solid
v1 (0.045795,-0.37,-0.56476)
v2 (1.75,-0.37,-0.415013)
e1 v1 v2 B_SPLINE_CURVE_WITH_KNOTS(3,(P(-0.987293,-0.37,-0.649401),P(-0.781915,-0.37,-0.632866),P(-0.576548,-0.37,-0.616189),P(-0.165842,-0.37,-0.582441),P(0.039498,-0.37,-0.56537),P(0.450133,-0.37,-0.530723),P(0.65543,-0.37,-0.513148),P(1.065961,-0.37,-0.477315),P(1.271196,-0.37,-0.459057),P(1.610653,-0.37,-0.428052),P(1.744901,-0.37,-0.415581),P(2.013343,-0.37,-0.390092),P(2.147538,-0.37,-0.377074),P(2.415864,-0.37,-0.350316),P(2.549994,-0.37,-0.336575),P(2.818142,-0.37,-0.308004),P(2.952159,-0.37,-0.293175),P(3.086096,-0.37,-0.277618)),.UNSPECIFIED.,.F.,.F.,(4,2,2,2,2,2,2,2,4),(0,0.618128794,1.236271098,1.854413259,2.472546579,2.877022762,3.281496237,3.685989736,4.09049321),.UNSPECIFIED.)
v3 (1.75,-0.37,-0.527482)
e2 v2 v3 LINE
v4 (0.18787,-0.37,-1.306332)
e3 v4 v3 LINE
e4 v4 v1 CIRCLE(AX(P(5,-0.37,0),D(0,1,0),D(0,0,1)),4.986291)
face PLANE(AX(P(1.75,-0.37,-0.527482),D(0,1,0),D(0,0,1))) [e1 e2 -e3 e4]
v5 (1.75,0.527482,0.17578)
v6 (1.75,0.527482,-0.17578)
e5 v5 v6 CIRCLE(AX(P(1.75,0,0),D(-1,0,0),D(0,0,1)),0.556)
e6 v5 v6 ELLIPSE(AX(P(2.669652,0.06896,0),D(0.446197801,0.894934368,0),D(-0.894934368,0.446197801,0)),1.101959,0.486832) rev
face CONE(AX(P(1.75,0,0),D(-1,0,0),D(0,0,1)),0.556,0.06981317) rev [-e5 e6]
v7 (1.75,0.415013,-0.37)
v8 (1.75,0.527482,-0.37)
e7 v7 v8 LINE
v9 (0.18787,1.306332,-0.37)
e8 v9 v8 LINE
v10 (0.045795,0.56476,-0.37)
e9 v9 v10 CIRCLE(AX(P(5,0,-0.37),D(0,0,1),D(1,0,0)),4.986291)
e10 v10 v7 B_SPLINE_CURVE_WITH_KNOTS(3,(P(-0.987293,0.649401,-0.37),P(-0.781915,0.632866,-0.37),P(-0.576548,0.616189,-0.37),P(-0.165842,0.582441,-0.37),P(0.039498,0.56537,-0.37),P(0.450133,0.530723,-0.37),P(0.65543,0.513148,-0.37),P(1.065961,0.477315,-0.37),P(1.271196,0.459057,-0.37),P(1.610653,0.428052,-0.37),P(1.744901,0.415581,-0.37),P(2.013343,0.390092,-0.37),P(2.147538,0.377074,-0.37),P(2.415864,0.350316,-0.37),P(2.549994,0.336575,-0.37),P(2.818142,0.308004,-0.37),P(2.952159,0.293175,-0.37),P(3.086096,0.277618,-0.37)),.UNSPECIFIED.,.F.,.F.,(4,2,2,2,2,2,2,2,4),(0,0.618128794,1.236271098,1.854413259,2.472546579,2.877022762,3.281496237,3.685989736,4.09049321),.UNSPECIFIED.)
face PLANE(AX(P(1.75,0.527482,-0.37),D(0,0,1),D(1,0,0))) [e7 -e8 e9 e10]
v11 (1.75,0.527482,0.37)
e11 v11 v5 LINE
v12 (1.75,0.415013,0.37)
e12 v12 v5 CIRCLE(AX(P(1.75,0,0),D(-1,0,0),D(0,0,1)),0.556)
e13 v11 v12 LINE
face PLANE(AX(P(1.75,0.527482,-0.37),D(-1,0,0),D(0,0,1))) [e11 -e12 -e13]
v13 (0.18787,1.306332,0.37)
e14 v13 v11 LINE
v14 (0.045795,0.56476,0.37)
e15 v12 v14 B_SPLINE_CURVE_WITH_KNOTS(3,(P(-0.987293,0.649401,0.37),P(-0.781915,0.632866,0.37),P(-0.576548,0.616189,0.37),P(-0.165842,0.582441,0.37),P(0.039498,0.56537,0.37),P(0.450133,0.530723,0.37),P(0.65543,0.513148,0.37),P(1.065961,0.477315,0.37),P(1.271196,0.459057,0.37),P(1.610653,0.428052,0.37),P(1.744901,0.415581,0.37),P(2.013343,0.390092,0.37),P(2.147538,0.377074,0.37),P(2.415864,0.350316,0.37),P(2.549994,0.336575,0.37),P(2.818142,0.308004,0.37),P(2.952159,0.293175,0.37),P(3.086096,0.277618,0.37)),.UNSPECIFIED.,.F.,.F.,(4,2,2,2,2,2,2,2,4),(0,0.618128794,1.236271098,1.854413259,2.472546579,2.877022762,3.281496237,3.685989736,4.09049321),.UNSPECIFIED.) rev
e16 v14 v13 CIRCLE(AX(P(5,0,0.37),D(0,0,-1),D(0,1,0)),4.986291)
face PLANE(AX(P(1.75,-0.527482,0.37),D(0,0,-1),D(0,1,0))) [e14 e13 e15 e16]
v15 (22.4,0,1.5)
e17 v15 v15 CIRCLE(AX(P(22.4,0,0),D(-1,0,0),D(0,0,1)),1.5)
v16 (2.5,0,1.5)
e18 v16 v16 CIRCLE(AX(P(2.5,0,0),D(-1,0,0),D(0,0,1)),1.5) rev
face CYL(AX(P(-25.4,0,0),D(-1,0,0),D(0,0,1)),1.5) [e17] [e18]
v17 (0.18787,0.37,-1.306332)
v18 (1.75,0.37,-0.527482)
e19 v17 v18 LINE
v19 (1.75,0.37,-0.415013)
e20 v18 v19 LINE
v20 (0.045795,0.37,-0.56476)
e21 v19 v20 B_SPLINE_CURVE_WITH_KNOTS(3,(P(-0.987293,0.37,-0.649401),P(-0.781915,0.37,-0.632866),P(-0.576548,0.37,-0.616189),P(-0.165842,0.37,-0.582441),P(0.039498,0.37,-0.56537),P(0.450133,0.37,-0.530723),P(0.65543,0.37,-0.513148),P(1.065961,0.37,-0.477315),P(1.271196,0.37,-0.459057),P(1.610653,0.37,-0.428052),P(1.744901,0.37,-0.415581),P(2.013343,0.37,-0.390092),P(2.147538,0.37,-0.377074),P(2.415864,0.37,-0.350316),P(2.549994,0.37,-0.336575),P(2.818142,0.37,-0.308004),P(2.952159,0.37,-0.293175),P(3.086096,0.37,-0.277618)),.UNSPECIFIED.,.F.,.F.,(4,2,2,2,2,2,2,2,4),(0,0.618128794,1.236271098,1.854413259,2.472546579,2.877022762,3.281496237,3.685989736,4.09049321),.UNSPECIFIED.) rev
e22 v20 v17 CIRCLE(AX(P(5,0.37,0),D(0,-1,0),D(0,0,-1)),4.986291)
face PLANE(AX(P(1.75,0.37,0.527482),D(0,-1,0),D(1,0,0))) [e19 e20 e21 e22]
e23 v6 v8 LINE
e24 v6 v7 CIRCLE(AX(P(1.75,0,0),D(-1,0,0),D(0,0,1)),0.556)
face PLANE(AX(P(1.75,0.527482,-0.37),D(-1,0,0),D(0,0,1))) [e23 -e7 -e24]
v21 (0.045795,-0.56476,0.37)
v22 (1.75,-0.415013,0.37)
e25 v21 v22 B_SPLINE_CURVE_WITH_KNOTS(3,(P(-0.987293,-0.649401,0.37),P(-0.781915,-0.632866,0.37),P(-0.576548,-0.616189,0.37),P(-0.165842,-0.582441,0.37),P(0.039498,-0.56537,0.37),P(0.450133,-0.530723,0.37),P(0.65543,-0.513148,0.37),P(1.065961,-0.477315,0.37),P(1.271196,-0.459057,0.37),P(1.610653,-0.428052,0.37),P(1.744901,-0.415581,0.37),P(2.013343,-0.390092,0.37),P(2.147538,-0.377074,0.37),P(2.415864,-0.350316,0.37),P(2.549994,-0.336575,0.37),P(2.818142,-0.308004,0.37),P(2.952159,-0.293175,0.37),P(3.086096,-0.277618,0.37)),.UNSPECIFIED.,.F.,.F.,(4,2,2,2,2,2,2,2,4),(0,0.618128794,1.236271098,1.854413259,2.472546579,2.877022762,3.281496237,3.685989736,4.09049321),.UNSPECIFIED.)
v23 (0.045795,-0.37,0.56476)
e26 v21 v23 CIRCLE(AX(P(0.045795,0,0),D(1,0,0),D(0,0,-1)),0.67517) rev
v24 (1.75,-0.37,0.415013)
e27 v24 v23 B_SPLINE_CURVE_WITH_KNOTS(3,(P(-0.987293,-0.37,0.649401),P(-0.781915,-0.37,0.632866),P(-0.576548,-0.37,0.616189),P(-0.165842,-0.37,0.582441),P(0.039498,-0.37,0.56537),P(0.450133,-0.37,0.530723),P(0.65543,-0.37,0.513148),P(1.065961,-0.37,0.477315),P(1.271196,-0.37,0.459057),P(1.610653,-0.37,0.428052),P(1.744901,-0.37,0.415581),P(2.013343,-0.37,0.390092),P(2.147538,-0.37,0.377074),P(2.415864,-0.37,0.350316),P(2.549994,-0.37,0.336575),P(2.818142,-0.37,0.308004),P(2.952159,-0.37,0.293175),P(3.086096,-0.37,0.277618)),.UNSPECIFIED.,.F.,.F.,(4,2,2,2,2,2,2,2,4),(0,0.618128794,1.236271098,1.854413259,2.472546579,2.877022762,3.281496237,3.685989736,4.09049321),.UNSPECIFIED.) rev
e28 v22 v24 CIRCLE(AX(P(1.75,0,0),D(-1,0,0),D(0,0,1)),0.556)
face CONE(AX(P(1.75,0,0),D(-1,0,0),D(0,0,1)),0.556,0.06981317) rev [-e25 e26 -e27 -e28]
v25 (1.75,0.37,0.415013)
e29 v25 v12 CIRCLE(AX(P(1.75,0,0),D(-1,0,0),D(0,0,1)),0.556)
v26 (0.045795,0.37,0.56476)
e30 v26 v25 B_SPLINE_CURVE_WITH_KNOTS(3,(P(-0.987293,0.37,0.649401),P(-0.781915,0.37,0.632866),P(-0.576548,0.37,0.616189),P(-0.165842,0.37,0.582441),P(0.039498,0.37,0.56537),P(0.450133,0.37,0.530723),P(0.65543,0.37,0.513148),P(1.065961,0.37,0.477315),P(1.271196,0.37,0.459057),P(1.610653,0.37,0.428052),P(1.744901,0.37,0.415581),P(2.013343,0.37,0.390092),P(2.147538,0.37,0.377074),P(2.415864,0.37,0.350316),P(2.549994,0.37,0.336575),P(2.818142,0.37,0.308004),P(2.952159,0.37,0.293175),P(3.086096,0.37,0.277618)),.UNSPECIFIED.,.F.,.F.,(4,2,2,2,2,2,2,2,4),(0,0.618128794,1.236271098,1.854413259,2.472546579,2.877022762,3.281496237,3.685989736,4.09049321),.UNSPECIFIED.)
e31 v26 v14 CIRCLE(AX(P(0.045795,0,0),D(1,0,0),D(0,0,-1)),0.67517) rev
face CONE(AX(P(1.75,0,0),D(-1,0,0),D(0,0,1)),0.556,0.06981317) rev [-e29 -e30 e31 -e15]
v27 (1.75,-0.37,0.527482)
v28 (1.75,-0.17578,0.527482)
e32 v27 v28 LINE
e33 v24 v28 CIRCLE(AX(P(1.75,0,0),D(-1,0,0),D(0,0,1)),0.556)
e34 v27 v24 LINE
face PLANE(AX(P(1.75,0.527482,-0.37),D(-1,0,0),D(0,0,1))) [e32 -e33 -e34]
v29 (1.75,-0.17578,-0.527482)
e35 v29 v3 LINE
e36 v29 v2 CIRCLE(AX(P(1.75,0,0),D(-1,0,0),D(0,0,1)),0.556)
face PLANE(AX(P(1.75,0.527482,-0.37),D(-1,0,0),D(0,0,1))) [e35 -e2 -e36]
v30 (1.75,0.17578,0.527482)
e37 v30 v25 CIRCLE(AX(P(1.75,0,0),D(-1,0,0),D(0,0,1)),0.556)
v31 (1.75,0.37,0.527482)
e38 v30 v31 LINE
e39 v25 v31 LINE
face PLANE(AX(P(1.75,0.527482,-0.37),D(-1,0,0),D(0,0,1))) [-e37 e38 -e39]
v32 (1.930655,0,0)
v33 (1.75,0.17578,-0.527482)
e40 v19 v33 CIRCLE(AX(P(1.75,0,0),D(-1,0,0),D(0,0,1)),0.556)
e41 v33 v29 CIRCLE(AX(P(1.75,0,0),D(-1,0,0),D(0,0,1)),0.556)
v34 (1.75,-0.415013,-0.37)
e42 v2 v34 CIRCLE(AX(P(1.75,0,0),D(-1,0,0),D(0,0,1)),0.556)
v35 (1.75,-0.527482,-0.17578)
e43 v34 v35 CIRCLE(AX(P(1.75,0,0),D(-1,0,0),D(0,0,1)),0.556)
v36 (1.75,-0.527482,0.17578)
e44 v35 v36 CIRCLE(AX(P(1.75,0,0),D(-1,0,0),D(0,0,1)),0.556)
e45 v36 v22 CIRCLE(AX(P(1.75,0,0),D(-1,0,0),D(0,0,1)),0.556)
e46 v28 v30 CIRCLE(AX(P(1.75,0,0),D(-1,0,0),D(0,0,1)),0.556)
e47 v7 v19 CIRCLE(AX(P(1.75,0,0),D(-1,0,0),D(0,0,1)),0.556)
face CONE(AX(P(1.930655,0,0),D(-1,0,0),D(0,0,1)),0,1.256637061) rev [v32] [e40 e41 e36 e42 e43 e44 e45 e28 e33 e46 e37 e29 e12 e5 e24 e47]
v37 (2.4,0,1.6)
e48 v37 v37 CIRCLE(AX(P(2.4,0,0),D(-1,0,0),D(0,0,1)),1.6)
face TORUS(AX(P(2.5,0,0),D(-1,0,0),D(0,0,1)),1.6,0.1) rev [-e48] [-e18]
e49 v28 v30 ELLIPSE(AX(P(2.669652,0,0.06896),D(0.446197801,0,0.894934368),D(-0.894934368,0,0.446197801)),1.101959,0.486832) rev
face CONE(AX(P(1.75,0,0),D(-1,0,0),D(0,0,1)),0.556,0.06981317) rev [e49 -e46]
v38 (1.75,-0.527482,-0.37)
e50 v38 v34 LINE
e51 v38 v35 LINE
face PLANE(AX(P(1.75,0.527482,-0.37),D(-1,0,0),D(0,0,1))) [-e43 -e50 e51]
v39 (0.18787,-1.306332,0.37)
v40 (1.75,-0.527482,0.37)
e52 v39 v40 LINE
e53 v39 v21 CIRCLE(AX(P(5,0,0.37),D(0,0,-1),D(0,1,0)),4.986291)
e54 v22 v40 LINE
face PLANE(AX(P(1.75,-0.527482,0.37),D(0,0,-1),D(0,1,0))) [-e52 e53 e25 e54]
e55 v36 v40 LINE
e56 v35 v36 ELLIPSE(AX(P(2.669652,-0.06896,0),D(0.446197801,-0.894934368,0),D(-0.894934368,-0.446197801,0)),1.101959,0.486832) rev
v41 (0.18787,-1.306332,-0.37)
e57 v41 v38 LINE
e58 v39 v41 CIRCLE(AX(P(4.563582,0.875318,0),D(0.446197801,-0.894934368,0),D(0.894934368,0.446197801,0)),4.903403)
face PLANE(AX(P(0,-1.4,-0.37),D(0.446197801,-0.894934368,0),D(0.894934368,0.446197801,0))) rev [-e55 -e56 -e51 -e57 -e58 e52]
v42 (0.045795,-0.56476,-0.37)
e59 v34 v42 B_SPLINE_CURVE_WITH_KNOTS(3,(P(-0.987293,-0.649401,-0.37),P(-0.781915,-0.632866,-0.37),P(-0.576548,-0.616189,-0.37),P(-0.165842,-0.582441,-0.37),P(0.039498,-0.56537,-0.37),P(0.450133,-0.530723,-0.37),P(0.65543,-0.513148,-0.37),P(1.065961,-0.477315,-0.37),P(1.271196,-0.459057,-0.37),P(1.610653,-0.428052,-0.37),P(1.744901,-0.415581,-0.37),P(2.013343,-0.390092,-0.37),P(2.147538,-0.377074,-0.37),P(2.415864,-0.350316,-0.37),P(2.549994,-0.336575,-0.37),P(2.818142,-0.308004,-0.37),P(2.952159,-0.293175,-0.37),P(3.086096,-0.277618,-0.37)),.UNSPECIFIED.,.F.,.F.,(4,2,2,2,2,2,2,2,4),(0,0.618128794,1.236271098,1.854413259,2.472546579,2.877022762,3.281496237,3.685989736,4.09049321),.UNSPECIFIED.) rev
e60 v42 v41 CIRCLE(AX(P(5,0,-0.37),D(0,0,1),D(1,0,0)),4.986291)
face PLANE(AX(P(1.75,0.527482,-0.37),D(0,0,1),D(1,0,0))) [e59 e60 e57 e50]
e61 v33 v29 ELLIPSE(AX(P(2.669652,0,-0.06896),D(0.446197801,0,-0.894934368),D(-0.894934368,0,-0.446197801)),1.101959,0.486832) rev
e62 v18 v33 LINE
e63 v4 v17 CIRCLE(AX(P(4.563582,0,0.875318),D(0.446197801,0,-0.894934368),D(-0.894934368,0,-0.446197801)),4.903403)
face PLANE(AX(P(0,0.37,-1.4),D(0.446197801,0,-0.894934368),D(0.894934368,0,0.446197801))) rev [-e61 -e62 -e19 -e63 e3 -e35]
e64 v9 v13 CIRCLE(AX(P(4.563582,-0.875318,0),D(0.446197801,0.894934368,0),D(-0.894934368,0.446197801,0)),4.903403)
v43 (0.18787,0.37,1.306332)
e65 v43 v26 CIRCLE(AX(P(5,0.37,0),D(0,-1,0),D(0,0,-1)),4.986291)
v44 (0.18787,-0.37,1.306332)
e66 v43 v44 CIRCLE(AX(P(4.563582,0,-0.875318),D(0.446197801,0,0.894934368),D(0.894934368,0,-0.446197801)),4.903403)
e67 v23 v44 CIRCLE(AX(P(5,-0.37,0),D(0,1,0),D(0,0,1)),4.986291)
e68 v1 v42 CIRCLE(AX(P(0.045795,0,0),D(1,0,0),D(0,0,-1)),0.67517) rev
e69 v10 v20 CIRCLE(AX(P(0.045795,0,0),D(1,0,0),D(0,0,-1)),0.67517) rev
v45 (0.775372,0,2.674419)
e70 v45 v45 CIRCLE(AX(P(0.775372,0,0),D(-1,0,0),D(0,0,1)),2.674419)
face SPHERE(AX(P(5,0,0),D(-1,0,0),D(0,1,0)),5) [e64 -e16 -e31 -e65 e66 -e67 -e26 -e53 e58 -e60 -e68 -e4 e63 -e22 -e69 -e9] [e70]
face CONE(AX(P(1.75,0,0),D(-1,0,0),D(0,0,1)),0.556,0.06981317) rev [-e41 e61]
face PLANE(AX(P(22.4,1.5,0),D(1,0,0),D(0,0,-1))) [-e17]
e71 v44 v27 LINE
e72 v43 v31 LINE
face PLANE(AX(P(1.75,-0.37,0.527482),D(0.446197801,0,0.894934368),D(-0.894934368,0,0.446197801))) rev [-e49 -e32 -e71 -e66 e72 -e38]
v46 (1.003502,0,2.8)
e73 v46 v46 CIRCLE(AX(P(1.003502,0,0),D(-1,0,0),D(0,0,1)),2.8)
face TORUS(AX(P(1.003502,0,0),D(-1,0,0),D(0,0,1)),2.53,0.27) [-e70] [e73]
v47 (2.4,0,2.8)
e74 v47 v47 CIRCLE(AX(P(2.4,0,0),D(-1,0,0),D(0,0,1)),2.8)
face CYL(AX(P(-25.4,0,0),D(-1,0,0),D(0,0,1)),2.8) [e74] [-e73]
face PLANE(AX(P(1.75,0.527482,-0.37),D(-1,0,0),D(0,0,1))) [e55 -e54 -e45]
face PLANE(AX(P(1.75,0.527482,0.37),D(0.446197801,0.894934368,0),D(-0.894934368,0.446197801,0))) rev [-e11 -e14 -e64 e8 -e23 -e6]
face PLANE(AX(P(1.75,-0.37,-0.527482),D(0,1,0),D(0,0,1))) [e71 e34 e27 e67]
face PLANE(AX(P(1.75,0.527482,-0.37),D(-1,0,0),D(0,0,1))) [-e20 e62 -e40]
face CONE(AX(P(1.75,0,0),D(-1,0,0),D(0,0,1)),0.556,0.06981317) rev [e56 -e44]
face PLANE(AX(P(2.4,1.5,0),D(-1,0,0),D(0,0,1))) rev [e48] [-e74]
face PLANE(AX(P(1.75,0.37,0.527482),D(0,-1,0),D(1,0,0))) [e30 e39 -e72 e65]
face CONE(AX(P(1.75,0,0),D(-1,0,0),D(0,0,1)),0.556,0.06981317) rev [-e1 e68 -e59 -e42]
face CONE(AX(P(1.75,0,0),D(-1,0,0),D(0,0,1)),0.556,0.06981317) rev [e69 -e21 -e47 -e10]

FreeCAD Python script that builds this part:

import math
import FreeCAD as App
import Part
import Sketcher
Q = App.Units.Quantity


def edges_at(feature, points):
    """Names of the edges that pass closest to the given points."""
    edges = feature.Shape.Edges
    near = lambda p: min(range(len(edges)), key=lambda i: edges[i].distToShape(Part.Vertex(*p))[0])
    return sorted({f"Edge{near(p) + 1}" for p in points})

doc = App.newDocument("Part")
body = doc.addObject("PartDesign::Body", "Body")

# Sketch on XY plane
sketch1 = body.newObject("Sketcher::SketchObject", "Sketch")
sketch1.AttachmentSupport = (doc.getObject("XY_Plane"), [""])
sketch1.MapMode = "FlatFace"
sketch1.addGeometry(Part.LineSegment(App.Vector(2.4, 1.5, 0), App.Vector(2.4, 2.8, 0)), False)
sketch1.addGeometry(Part.LineSegment(App.Vector(2.4, 2.8, 0), App.Vector(1, 2.8, 0)), False)
sketch1.addGeometry(Part.ArcOfCircle(Part.Circle(App.Vector(1, 2.53, 0), App.Vector(0, 0, 1), 0.27), math.radians(90), math.radians(148)), False)
sketch1.addGeometry(Part.ArcOfCircle(Part.Circle(App.Vector(5, 0, 0), App.Vector(0, 0, 1), 5), math.radians(148), math.radians(180)), False)
sketch1.addGeometry(Part.LineSegment(App.Vector(0, 0, 0), App.Vector(22.4, 0, 0)), False)
sketch1.addGeometry(Part.LineSegment(App.Vector(22.4, 0, 0), App.Vector(22.4, 1.5, 0)), False)
sketch1.addGeometry(Part.LineSegment(App.Vector(22.4, 1.5, 0), App.Vector(2.4, 1.5, 0)), False)
sketch1.addConstraint(Sketcher.Constraint("Coincident", 0, 2, 1, 1))
sketch1.addConstraint(Sketcher.Constraint("Tangent", 1, 2, 2, 1))
sketch1.addConstraint(Sketcher.Constraint("Tangent", 2, 2, 3, 1))
sketch1.addConstraint(Sketcher.Constraint("Coincident", 3, 2, 4, 1))
sketch1.addConstraint(Sketcher.Constraint("Coincident", 4, 2, 5, 1))
sketch1.addConstraint(Sketcher.Constraint("Coincident", 5, 2, 6, 1))
sketch1.addConstraint(Sketcher.Constraint("Coincident", 6, 2, 0, 1))
sketch1.addConstraint(Sketcher.Constraint("Vertical", 0))
sketch1.addConstraint(Sketcher.Constraint("Horizontal", 1))
sketch1.addConstraint(Sketcher.Constraint("Horizontal", 4))
sketch1.addConstraint(Sketcher.Constraint("Vertical", 5))
sketch1.addConstraint(Sketcher.Constraint("Horizontal", 6))
sketch1.addConstraint(Sketcher.Constraint("Coincident", 3, 2, -1, 1))
sketch1.addConstraint(Sketcher.Constraint("PointOnObject", 3, 3, -1))
sketch1.addConstraint(Sketcher.Constraint("Radius", 3, Q("5 mm")))
sketch1.addConstraint(Sketcher.Constraint("DistanceX", 6, 2, 6, 1, Q("20 mm")))
sketch1.addConstraint(Sketcher.Constraint("Radius", 2, Q("0.27 mm")))
sketch1.addConstraint(Sketcher.Constraint("DistanceX", 4, 1, 4, 2, Q("22.4 mm")))
sketch1.addConstraint(Sketcher.Constraint("DistanceY", 0, 1, 0, 2, Q("1.3 mm")))
sketch1.addConstraint(Sketcher.Constraint("DistanceY", 5, 1, 5, 2, Q("1.5 mm")))
revolution = body.newObject("PartDesign::Revolution", "Revolution")
revolution.Profile = sketch1
revolution.ReferenceAxis = (sketch1, ["H_Axis"])
revolution.Angle = 360
doc.recompute()

fillet = body.newObject("PartDesign::Fillet", "Fillet")
fillet.Base = (revolution, edges_at(revolution, [(2.4, -1.5, 0)]))
fillet.Radius = 0.1

# Sketch on YZ plane
sketch2 = body.newObject("Sketcher::SketchObject", "Sketch001")
sketch2.AttachmentSupport = (doc.getObject("YZ_Plane"), [""])
sketch2.MapMode = "FlatFace"
sketch2.addGeometry(Part.LineSegment(App.Vector(1.4, 0.4, 0), App.Vector(-1.4, 0.4, 0)), False)
sketch2.addGeometry(Part.LineSegment(App.Vector(-1.4, 0.4, 0), App.Vector(-1.4, -0.4, 0)), False)
sketch2.addGeometry(Part.LineSegment(App.Vector(-1.4, -0.4, 0), App.Vector(1.4, -0.4, 0)), False)
sketch2.addGeometry(Part.LineSegment(App.Vector(1.4, -0.4, 0), App.Vector(1.4, 0.4, 0)), False)
sketch2.addConstraint(Sketcher.Constraint("Coincident", 0, 2, 1, 1))
sketch2.addConstraint(Sketcher.Constraint("Coincident", 1, 2, 2, 1))
sketch2.addConstraint(Sketcher.Constraint("Coincident", 2, 2, 3, 1))
sketch2.addConstraint(Sketcher.Constraint("Coincident", 3, 2, 0, 1))
sketch2.addConstraint(Sketcher.Constraint("Horizontal", 0))
sketch2.addConstraint(Sketcher.Constraint("Vertical", 1))
sketch2.addConstraint(Sketcher.Constraint("Horizontal", 2))
sketch2.addConstraint(Sketcher.Constraint("Vertical", 3))
sketch2.addConstraint(Sketcher.Constraint("Symmetric", 0, 2, 2, 2, -1, 1))
sketch2.addConstraint(Sketcher.Constraint("DistanceX", 0, 2, 0, 1, Q("2.8 mm")))
sketch2.addConstraint(Sketcher.Constraint("DistanceY", 1, 2, 1, 1, Q("0.74 mm")))

# Sketch on YZ plane
sketch3 = body.newObject("Sketcher::SketchObject", "Sketch002")
sketch3.AttachmentSupport = (doc.getObject("YZ_Plane"), [""])
sketch3.MapMode = "FlatFace"
sketch3.AttachmentOffset = App.Placement(App.Vector(0, 0, 1.75), App.Rotation())
sketch3.addGeometry(Part.LineSegment(App.Vector(0.5, 0.4, 0), App.Vector(-0.5, 0.4, 0)), False)
sketch3.addGeometry(Part.LineSegment(App.Vector(-0.5, 0.4, 0), App.Vector(-0.5, -0.4, 0)), False)
sketch3.addGeometry(Part.LineSegment(App.Vector(-0.5, -0.4, 0), App.Vector(0.5, -0.4, 0)), False)
sketch3.addGeometry(Part.LineSegment(App.Vector(0.5, -0.4, 0), App.Vector(0.5, 0.4, 0)), False)
sketch3.addConstraint(Sketcher.Constraint("Coincident", 0, 2, 1, 1))
sketch3.addConstraint(Sketcher.Constraint("Coincident", 1, 2, 2, 1))
sketch3.addConstraint(Sketcher.Constraint("Coincident", 2, 2, 3, 1))
sketch3.addConstraint(Sketcher.Constraint("Coincident", 3, 2, 0, 1))
sketch3.addConstraint(Sketcher.Constraint("Horizontal", 0))
sketch3.addConstraint(Sketcher.Constraint("Vertical", 1))
sketch3.addConstraint(Sketcher.Constraint("Horizontal", 2))
sketch3.addConstraint(Sketcher.Constraint("Vertical", 3))
sketch3.addConstraint(Sketcher.Constraint("Symmetric", 0, 2, 2, 2, -1, 1))
sketch3.addConstraint(Sketcher.Constraint("DistanceY", 1, 2, 1, 1, Q("0.74 mm")))
sketch3.addConstraint(Sketcher.Constraint("DistanceX", 0, 2, 0, 1, Q("1.054964 mm")))

subtractiveloft = body.newObject("PartDesign::SubtractiveLoft", "SubtractiveLoft")
subtractiveloft.Profile = sketch2
subtractiveloft.Sections = [sketch3]
doc.recompute()

polarpattern = body.newObject("PartDesign::PolarPattern", "PolarPattern")
polarpattern.Originals = [subtractiveloft]
polarpattern.Axis = (doc.getObject("X_Axis"), [""])
polarpattern.Angle = 90
polarpattern.Occurrences = 2
body.Tip = polarpattern

# Sketch on XY plane
sketch4 = body.newObject("Sketcher::SketchObject", "Sketch003")
sketch4.AttachmentSupport = (doc.getObject("XY_Plane"), [""])
sketch4.MapMode = "FlatFace"
sketch4.addGeometry(Part.LineSegment(App.Vector(0, 0.7, 0), App.Vector(0, 0, 0)), False)
sketch4.addGeometry(Part.LineSegment(App.Vector(0, 0, 0), App.Vector(1.9, 0, 0)), False)
sketch4.addGeometry(Part.LineSegment(App.Vector(1.9, 0, 0), App.Vector(1.8, 0.6, 0)), False)
sketch4.addGeometry(Part.LineSegment(App.Vector(1.8, 0.6, 0), App.Vector(0, 0.7, 0)), False)
sketch4.addConstraint(Sketcher.Constraint("Coincident", 0, 2, 1, 1))
sketch4.addConstraint(Sketcher.Constraint("Coincident", 1, 2, 2, 1))
sketch4.addConstraint(Sketcher.Constraint("Coincident", 2, 2, 3, 1))
sketch4.addConstraint(Sketcher.Constraint("Coincident", 3, 2, 0, 1))
sketch4.addConstraint(Sketcher.Constraint("Vertical", 0))
sketch4.addConstraint(Sketcher.Constraint("Horizontal", 1))
sketch4.addConstraint(Sketcher.Constraint("Coincident", 0, 2, -1, 1))
sketch4.addConstraint(Sketcher.Constraint("Angle", 2, Q("108 deg")))
sketch4.addConstraint(Sketcher.Constraint("Angle", 3, Q("176 deg")))
sketch4.addConstraint(Sketcher.Constraint("DistanceX", -1, 1, 2, 2, Q("1.75 mm")))
sketch4.addConstraint(Sketcher.Constraint("DistanceY", -1, 1, 2, 2, Q("0.556 mm")))
groove = body.newObject("PartDesign::Groove", "Groove")
groove.Profile = sketch4
groove.ReferenceAxis = (sketch4, ["H_Axis"])
groove.Angle = 360

doc.recompute()
